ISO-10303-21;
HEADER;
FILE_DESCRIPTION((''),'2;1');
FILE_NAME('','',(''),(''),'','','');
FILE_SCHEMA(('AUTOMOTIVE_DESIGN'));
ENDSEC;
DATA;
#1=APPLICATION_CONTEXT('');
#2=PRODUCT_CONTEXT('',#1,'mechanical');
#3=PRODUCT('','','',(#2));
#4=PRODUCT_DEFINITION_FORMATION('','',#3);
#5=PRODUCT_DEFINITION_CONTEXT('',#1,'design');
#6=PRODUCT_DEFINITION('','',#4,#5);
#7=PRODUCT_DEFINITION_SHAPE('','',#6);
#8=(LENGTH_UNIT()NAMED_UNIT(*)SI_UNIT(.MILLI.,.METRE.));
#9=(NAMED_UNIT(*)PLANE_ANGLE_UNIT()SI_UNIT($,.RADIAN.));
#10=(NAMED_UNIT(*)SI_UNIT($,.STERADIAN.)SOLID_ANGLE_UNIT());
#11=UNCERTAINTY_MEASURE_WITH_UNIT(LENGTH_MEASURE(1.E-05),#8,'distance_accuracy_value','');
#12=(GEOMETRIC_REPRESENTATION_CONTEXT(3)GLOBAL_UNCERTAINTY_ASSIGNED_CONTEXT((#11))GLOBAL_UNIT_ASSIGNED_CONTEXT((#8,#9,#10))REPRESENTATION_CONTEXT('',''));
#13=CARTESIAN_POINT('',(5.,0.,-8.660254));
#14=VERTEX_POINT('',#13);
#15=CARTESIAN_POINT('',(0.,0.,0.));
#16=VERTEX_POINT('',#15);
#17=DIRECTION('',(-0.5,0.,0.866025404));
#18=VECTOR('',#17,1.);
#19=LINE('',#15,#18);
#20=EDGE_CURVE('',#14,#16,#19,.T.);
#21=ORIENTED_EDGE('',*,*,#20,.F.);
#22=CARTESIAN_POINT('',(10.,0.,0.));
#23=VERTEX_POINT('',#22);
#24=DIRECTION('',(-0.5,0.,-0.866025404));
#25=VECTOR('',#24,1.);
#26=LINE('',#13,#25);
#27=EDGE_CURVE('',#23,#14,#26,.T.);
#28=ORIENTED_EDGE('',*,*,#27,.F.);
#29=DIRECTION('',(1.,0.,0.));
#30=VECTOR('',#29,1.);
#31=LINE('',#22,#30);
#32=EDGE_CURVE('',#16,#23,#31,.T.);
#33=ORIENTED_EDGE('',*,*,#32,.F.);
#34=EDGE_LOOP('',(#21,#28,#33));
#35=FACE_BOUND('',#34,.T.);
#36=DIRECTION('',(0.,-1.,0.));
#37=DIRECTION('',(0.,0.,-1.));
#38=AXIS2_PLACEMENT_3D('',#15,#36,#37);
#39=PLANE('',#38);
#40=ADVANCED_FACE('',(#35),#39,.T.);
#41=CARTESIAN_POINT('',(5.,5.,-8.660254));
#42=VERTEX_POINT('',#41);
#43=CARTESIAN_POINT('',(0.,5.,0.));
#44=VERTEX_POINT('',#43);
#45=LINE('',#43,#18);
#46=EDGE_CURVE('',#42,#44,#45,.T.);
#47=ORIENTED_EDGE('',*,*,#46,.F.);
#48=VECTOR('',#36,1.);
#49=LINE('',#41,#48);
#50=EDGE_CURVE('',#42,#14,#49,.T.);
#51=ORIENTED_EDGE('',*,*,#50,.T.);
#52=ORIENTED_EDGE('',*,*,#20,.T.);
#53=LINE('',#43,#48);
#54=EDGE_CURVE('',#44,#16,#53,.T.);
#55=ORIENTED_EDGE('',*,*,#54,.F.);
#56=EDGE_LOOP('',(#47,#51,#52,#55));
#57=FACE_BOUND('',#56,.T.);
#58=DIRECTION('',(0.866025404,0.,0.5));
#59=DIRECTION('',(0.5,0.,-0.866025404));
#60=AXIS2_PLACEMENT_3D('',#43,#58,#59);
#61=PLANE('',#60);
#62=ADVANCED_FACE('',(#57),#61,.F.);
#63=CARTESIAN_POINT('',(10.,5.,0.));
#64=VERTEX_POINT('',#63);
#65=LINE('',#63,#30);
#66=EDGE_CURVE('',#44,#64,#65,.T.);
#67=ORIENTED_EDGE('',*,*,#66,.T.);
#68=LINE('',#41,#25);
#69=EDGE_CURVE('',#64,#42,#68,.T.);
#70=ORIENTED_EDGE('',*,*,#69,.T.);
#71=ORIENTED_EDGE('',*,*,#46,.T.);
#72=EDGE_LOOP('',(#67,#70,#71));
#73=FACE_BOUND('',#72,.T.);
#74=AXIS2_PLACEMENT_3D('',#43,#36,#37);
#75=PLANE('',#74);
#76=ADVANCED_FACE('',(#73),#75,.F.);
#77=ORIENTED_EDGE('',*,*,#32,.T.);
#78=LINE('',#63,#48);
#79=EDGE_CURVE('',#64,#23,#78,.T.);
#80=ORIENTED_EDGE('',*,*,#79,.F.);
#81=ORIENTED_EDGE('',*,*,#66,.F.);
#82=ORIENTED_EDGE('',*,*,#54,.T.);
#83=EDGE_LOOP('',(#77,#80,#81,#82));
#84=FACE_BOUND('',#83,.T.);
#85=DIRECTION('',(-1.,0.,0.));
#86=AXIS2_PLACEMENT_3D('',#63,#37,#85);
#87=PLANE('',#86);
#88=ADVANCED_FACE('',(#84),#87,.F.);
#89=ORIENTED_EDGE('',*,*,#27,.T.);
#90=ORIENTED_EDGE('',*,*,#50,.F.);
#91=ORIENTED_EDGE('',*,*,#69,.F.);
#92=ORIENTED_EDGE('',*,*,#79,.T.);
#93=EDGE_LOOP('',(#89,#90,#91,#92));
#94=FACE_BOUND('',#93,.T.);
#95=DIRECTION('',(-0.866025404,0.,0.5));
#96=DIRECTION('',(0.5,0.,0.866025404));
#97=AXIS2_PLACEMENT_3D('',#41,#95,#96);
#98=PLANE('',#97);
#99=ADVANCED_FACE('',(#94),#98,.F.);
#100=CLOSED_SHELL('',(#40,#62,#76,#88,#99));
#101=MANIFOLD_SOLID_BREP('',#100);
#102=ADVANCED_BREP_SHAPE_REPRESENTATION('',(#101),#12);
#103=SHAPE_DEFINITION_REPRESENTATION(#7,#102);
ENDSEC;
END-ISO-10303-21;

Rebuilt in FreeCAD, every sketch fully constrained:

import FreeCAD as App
import Part
import Sketcher
Q = App.Units.Quantity


def add_polygon(sketch, points):
    """Adds a closed chain of lines whose ends are joined by coincident constraints."""
    first, n = sketch.GeometryCount, len(points)
    for a, b in zip(points, points[1:] + points[:1]):
        sketch.addGeometry(Part.LineSegment(App.Vector(*a, 0), App.Vector(*b, 0)), False)
    for i in range(n):
        sketch.addConstraint(Sketcher.Constraint("Coincident", first + i, 2, first + (i + 1) % n, 1))

doc = App.newDocument("Part")
body = doc.addObject("PartDesign::Body", "Body")

# Sketch on XZ plane
sketch1 = body.newObject("Sketcher::SketchObject", "Sketch")
sketch1.AttachmentSupport = (doc.getObject("XZ_Plane"), [""])
sketch1.MapMode = "FlatFace"
add_polygon(sketch1, [(5, -9), (0, 0), (10, 0)])  # lines 0-2
sketch1.addConstraint(Sketcher.Constraint("Horizontal", 1))
sketch1.addConstraint(Sketcher.Constraint("Coincident", 0, 2, -1, 1))
sketch1.addConstraint(Sketcher.Constraint("Equal", 0, 2))
sketch1.addConstraint(Sketcher.Constraint("DistanceX", 1, 1, 1, 2, 10.0))
sketch1.addConstraint(Sketcher.Constraint("Angle", 0, Q("120 deg")))
pad1 = body.newObject("PartDesign::Pad", "Pad")
pad1.Profile = sketch1
pad1.Length = 5
pad1.Reversed = True

doc.recompute()
